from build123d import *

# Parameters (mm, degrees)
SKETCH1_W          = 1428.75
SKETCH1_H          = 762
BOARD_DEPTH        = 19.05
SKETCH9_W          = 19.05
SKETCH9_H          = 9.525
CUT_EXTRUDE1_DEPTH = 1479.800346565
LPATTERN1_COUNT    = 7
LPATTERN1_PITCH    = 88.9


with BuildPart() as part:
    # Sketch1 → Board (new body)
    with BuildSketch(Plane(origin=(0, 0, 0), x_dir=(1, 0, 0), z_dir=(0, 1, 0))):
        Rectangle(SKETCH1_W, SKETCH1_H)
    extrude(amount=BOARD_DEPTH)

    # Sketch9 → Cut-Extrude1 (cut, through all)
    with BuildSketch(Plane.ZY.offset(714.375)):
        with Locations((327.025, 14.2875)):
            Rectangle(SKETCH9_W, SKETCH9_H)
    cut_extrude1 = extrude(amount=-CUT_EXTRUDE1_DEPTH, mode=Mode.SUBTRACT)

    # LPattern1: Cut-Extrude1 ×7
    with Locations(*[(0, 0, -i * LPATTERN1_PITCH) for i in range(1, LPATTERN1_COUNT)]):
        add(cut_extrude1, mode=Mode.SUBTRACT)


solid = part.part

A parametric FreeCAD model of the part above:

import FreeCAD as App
import Part
import Sketcher

V = App.Vector
Q = App.Units.Quantity

doc = App.newDocument("Part")
body = doc.addObject("PartDesign::Body", "Body")

# Sketch on XZ plane
sketch1 = body.newObject("Sketcher::SketchObject", "Sketch")
sketch1.AttachmentSupport = (doc.getObject("XZ_Plane"), [""])
sketch1.MapMode = "FlatFace"
sketch1.addGeometry([
    Part.LineSegment(V(-714, -381, 0), V(-714, 381, 0)),
    Part.LineSegment(V(-714, 381, 0), V(714, 381, 0)),
    Part.LineSegment(V(714, 381, 0), V(714, -381, 0)),
    Part.LineSegment(V(714, -381, 0), V(-714, -381, 0)),
], False)
sketch1.addConstraint([
    Sketcher.Constraint("Coincident", 0, 2, 1, 1),
    Sketcher.Constraint("Coincident", 1, 2, 2, 1),
    Sketcher.Constraint("Coincident", 2, 2, 3, 1),
    Sketcher.Constraint("Coincident", 3, 2, 0, 1),
    Sketcher.Constraint("Vertical", 0),
    Sketcher.Constraint("Horizontal", 1),
    Sketcher.Constraint("Vertical", 2),
    Sketcher.Constraint("Horizontal", 3),
    Sketcher.Constraint("Symmetric", 0, 2, 2, 2, -1, 1),
    Sketcher.Constraint("DistanceY", 0, 1, 0, 2, Q("30 in")),
    Sketcher.Constraint("DistanceX", 1, 1, 1, 2, Q("56.25 in")),
])
pad1 = body.newObject("PartDesign::Pad", "Pad")
pad1.Profile = sketch1
pad1.Length = Q("0.75 in")
pad1.Reversed = True

# Sketch on YZ plane
sketch2 = body.newObject("Sketcher::SketchObject", "Sketch001")
sketch2.AttachmentSupport = (doc.getObject("YZ_Plane"), [""])
sketch2.MapMode = "FlatFace"
sketch2.AttachmentOffset = App.Placement(V(0, 0, -28.125 * 25.4), App.Rotation())
sketch2.addGeometry([
    Part.LineSegment(V(19, 318, 0), V(10, 318, 0)),
    Part.LineSegment(V(10, 318, 0), V(10, 337, 0)),
    Part.LineSegment(V(10, 337, 0), V(19, 337, 0)),
    Part.LineSegment(V(19, 337, 0), V(19, 318, 0)),
], False)
sketch2.addConstraint([
    Sketcher.Constraint("Coincident", 0, 2, 1, 1),
    Sketcher.Constraint("Coincident", 1, 2, 2, 1),
    Sketcher.Constraint("Coincident", 2, 2, 3, 1),
    Sketcher.Constraint("Coincident", 3, 2, 0, 1),
    Sketcher.Constraint("Horizontal", 0),
    Sketcher.Constraint("Vertical", 1),
    Sketcher.Constraint("Horizontal", 2),
    Sketcher.Constraint("Vertical", 3),
    Sketcher.Constraint("DistanceY", 1, 1, 1, 2, Q("0.75 in")),
    Sketcher.Constraint("DistanceY", -1, 1, 0, 2, Q("12.5 in")),
    Sketcher.Constraint("DistanceX", 0, 2, 0, 1, Q("0.375 in")),
    Sketcher.Constraint("DistanceX", -1, 1, 2, 2, Q("0.75 in")),
])
pocket1 = body.newObject("PartDesign::Pocket", "Pocket")
pocket1.Profile = sketch2
pocket1.Type = "ThroughAll"
pocket1.Reversed = True
doc.recompute()

linearpattern = body.newObject("PartDesign::LinearPattern", "LinearPattern")
linearpattern.Originals = [pocket1]
linearpattern.Direction = (doc.getObject("Z_Axis"), [""])
linearpattern.Mode = "offset"
linearpattern.Offset = Q("3.5 in")
linearpattern.Occurrences = 7
linearpattern.Reversed = True
body.Tip = linearpattern

doc.recompute()
